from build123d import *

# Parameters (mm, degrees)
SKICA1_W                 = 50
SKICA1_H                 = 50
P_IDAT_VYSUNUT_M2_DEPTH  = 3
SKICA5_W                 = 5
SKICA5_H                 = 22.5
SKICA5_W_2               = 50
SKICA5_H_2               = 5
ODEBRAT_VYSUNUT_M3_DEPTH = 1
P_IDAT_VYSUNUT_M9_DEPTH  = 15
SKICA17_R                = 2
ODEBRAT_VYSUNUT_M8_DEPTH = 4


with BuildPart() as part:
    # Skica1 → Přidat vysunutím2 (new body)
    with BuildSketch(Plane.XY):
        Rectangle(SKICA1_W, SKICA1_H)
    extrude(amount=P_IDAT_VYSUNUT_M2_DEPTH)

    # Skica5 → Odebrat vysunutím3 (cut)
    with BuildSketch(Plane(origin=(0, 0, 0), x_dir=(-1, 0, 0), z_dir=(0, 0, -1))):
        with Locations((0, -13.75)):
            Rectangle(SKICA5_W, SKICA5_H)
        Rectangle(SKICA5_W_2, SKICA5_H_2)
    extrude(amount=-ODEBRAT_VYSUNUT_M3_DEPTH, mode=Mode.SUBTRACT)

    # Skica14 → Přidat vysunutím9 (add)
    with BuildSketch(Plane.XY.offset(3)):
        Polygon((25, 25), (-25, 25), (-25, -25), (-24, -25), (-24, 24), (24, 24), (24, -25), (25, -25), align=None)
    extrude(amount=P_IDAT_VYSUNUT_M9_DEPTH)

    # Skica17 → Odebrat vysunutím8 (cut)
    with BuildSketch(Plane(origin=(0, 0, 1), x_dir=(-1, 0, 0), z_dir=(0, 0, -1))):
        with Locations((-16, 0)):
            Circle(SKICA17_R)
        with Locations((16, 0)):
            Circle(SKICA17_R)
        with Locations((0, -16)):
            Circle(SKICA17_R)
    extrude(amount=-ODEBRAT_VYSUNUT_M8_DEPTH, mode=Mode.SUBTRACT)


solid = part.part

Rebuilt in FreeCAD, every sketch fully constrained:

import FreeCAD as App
import Part
import Sketcher
from FreeCAD import Vector

doc = App.newDocument("Part")
body = doc.addObject("PartDesign::Body", "Body")

# Sketch on XY plane
sketch1 = body.newObject("Sketcher::SketchObject", "Sketch")
sketch1.AttachmentSupport = (doc.getObject("XY_Plane"), [""])
sketch1.MapMode = "FlatFace"
sketch1.addGeometry(Part.LineSegment(Vector(-25, 25, 0), Vector(-25, -25, 0)), False)
sketch1.addGeometry(Part.LineSegment(Vector(-25, -25, 0), Vector(25, -25, 0)), False)
sketch1.addGeometry(Part.LineSegment(Vector(25, -25, 0), Vector(25, 25, 0)), False)
sketch1.addGeometry(Part.LineSegment(Vector(25, 25, 0), Vector(-25, 25, 0)), False)
sketch1.addConstraint(Sketcher.Constraint("Coincident", 0, 2, 1, 1))
sketch1.addConstraint(Sketcher.Constraint("Coincident", 1, 2, 2, 1))
sketch1.addConstraint(Sketcher.Constraint("Coincident", 2, 2, 3, 1))
sketch1.addConstraint(Sketcher.Constraint("Coincident", 3, 2, 0, 1))
sketch1.addConstraint(Sketcher.Constraint("Vertical", 0))
sketch1.addConstraint(Sketcher.Constraint("Horizontal", 1))
sketch1.addConstraint(Sketcher.Constraint("Vertical", 2))
sketch1.addConstraint(Sketcher.Constraint("Horizontal", 3))
sketch1.addConstraint(Sketcher.Constraint("Symmetric", 0, 2, 2, 2, -1, 1))
sketch1.addConstraint(Sketcher.Constraint("Equal", 3, 0))
sketch1.addConstraint(Sketcher.Constraint("DistanceX", 1, 1, 1, 2, 50.0))
pad1 = body.newObject("PartDesign::Pad", "Pad")
pad1.Profile = sketch1
pad1.Length = 3

# Sketch on XY plane
sketch2 = body.newObject("Sketcher::SketchObject", "Sketch001")
sketch2.AttachmentSupport = (doc.getObject("XY_Plane"), [""])
sketch2.MapMode = "FlatFace"
sketch2.addGeometry(Part.LineSegment(Vector(2, -2, 0), Vector(2, -25, 0)), False)
sketch2.addGeometry(Part.LineSegment(Vector(2, -25, 0), Vector(-2, -25, 0)), False)
sketch2.addGeometry(Part.LineSegment(Vector(-2, -25, 0), Vector(-2, -2, 0)), False)
sketch2.addGeometry(Part.LineSegment(Vector(-2, -2, 0), Vector(-25, -2, 0)), False)
sketch2.addGeometry(Part.LineSegment(Vector(-25, -2, 0), Vector(-25, 2, 0)), False)
sketch2.addGeometry(Part.LineSegment(Vector(-25, 2, 0), Vector(25, 2, 0)), False)
sketch2.addGeometry(Part.LineSegment(Vector(25, 2, 0), Vector(25, -2, 0)), False)
sketch2.addGeometry(Part.LineSegment(Vector(25, -2, 0), Vector(2, -2, 0)), False)
sketch2.addConstraint(Sketcher.Constraint("Coincident", 0, 2, 1, 1))
sketch2.addConstraint(Sketcher.Constraint("Coincident", 1, 2, 2, 1))
sketch2.addConstraint(Sketcher.Constraint("Coincident", 2, 2, 3, 1))
sketch2.addConstraint(Sketcher.Constraint("Coincident", 3, 2, 4, 1))
sketch2.addConstraint(Sketcher.Constraint("Coincident", 4, 2, 5, 1))
sketch2.addConstraint(Sketcher.Constraint("Coincident", 5, 2, 6, 1))
sketch2.addConstraint(Sketcher.Constraint("Coincident", 6, 2, 7, 1))
sketch2.addConstraint(Sketcher.Constraint("Coincident", 7, 2, 0, 1))
sketch2.addConstraint(Sketcher.Constraint("Vertical", 0))
sketch2.addConstraint(Sketcher.Constraint("Horizontal", 1))
sketch2.addConstraint(Sketcher.Constraint("Vertical", 2))
sketch2.addConstraint(Sketcher.Constraint("Horizontal", 3))
sketch2.addConstraint(Sketcher.Constraint("Vertical", 4))
sketch2.addConstraint(Sketcher.Constraint("Horizontal", 5))
sketch2.addConstraint(Sketcher.Constraint("Vertical", 6))
sketch2.addConstraint(Sketcher.Constraint("Horizontal", 7))
sketch2.addConstraint(Sketcher.Constraint("Symmetric", 3, 2, 5, 2, -1, 1))
sketch2.addConstraint(Sketcher.Constraint("Symmetric", 2, 2, 7, 2, -2))
sketch2.addConstraint(Sketcher.Constraint("Equal", 7, 0))
sketch2.addConstraint(Sketcher.Constraint("Equal", 1, 4))
sketch2.addConstraint(Sketcher.Constraint("DistanceX", 1, 2, 1, 1, 5.0))
sketch2.addConstraint(Sketcher.Constraint("DistanceX", 5, 1, 5, 2, 50.0))
pocket1 = body.newObject("PartDesign::Pocket", "Pocket")
pocket1.Profile = sketch2
pocket1.Length = 1
pocket1.Reversed = True

# Sketch on XY plane
sketch3 = body.newObject("Sketcher::SketchObject", "Sketch002")
sketch3.AttachmentSupport = (doc.getObject("XY_Plane"), [""])
sketch3.MapMode = "FlatFace"
sketch3.AttachmentOffset = App.Placement(Vector(0, 0, 3), App.Rotation())
sketch3.addGeometry(Part.LineSegment(Vector(25, 25, 0), Vector(-25, 25, 0)), False)
sketch3.addGeometry(Part.LineSegment(Vector(-25, 25, 0), Vector(-25, -25, 0)), False)
sketch3.addGeometry(Part.LineSegment(Vector(-25, -25, 0), Vector(-24, -25, 0)), False)
sketch3.addGeometry(Part.LineSegment(Vector(-24, -25, 0), Vector(-24, 24, 0)), False)
sketch3.addGeometry(Part.LineSegment(Vector(-24, 24, 0), Vector(24, 24, 0)), False)
sketch3.addGeometry(Part.LineSegment(Vector(24, 24, 0), Vector(24, -25, 0)), False)
sketch3.addGeometry(Part.LineSegment(Vector(24, -25, 0), Vector(25, -25, 0)), False)
sketch3.addGeometry(Part.LineSegment(Vector(25, -25, 0), Vector(25, 25, 0)), False)
sketch3.addConstraint(Sketcher.Constraint("Coincident", 0, 2, 1, 1))
sketch3.addConstraint(Sketcher.Constraint("Coincident", 1, 2, 2, 1))
sketch3.addConstraint(Sketcher.Constraint("Coincident", 2, 2, 3, 1))
sketch3.addConstraint(Sketcher.Constraint("Coincident", 3, 2, 4, 1))
sketch3.addConstraint(Sketcher.Constraint("Coincident", 4, 2, 5, 1))
sketch3.addConstraint(Sketcher.Constraint("Coincident", 5, 2, 6, 1))
sketch3.addConstraint(Sketcher.Constraint("Coincident", 6, 2, 7, 1))
sketch3.addConstraint(Sketcher.Constraint("Coincident", 7, 2, 0, 1))
sketch3.addConstraint(Sketcher.Constraint("Horizontal", 0))
sketch3.addConstraint(Sketcher.Constraint("Vertical", 1))
sketch3.addConstraint(Sketcher.Constraint("Horizontal", 2))
sketch3.addConstraint(Sketcher.Constraint("Vertical", 3))
sketch3.addConstraint(Sketcher.Constraint("Horizontal", 4))
sketch3.addConstraint(Sketcher.Constraint("Vertical", 5))
sketch3.addConstraint(Sketcher.Constraint("Horizontal", 6))
sketch3.addConstraint(Sketcher.Constraint("Vertical", 7))
sketch3.addConstraint(Sketcher.Constraint("Symmetric", 0, 2, 6, 2, -1, 1))
sketch3.addConstraint(Sketcher.Constraint("Symmetric", 2, 2, 5, 2, -2))
sketch3.addConstraint(Sketcher.Constraint("Equal", 0, 1))
sketch3.addConstraint(Sketcher.Constraint("DistanceX", 0, 2, 0, 1, 50.0))
sketch3.addConstraint(Sketcher.Constraint("DistanceX", 2, 1, 2, 2, 1.0))
sketch3.addConstraint(Sketcher.Constraint("DistanceY", 3, 1, 3, 2, 49.0))
pad2 = body.newObject("PartDesign::Pad", "Pad001")
pad2.Profile = sketch3
pad2.Length = 15

# Sketch on XY plane
sketch4 = body.newObject("Sketcher::SketchObject", "Sketch003")
sketch4.AttachmentSupport = (doc.getObject("XY_Plane"), [""])
sketch4.MapMode = "FlatFace"
sketch4.AttachmentOffset = App.Placement(Vector(0, 0, 1), App.Rotation())
sketch4.addGeometry(Part.Circle(Vector(16, 0, 0), Vector(0, 0, 1), 2), False)
sketch4.addGeometry(Part.Circle(Vector(-16, 0, 0), Vector(0, 0, 1), 2), False)
sketch4.addGeometry(Part.Circle(Vector(0, -16, 0), Vector(0, 0, 1), 2), False)
sketch4.addConstraint(Sketcher.Constraint("Equal", 0, 1))
sketch4.addConstraint(Sketcher.Constraint("Equal", 1, 2))
sketch4.addConstraint(Sketcher.Constraint("Symmetric", 0, 3, 1, 3, -1, 1))
sketch4.addConstraint(Sketcher.Constraint("PointOnObject", 0, 3, -1))
sketch4.addConstraint(Sketcher.Constraint("PointOnObject", 2, 3, -2))
sketch4.addConstraint(Sketcher.Constraint("Diameter", 0, 4.0))
sketch4.addConstraint(Sketcher.Constraint("DistanceX", -1, 1, 0, 3, 16.0))
sketch4.addConstraint(Sketcher.Constraint("DistanceY", 2, 3, -1, 1, 16.0))
pocket2 = body.newObject("PartDesign::Pocket", "Pocket001")
pocket2.Profile = sketch4
pocket2.Length = 4
pocket2.Reversed = True

doc.recompute()
